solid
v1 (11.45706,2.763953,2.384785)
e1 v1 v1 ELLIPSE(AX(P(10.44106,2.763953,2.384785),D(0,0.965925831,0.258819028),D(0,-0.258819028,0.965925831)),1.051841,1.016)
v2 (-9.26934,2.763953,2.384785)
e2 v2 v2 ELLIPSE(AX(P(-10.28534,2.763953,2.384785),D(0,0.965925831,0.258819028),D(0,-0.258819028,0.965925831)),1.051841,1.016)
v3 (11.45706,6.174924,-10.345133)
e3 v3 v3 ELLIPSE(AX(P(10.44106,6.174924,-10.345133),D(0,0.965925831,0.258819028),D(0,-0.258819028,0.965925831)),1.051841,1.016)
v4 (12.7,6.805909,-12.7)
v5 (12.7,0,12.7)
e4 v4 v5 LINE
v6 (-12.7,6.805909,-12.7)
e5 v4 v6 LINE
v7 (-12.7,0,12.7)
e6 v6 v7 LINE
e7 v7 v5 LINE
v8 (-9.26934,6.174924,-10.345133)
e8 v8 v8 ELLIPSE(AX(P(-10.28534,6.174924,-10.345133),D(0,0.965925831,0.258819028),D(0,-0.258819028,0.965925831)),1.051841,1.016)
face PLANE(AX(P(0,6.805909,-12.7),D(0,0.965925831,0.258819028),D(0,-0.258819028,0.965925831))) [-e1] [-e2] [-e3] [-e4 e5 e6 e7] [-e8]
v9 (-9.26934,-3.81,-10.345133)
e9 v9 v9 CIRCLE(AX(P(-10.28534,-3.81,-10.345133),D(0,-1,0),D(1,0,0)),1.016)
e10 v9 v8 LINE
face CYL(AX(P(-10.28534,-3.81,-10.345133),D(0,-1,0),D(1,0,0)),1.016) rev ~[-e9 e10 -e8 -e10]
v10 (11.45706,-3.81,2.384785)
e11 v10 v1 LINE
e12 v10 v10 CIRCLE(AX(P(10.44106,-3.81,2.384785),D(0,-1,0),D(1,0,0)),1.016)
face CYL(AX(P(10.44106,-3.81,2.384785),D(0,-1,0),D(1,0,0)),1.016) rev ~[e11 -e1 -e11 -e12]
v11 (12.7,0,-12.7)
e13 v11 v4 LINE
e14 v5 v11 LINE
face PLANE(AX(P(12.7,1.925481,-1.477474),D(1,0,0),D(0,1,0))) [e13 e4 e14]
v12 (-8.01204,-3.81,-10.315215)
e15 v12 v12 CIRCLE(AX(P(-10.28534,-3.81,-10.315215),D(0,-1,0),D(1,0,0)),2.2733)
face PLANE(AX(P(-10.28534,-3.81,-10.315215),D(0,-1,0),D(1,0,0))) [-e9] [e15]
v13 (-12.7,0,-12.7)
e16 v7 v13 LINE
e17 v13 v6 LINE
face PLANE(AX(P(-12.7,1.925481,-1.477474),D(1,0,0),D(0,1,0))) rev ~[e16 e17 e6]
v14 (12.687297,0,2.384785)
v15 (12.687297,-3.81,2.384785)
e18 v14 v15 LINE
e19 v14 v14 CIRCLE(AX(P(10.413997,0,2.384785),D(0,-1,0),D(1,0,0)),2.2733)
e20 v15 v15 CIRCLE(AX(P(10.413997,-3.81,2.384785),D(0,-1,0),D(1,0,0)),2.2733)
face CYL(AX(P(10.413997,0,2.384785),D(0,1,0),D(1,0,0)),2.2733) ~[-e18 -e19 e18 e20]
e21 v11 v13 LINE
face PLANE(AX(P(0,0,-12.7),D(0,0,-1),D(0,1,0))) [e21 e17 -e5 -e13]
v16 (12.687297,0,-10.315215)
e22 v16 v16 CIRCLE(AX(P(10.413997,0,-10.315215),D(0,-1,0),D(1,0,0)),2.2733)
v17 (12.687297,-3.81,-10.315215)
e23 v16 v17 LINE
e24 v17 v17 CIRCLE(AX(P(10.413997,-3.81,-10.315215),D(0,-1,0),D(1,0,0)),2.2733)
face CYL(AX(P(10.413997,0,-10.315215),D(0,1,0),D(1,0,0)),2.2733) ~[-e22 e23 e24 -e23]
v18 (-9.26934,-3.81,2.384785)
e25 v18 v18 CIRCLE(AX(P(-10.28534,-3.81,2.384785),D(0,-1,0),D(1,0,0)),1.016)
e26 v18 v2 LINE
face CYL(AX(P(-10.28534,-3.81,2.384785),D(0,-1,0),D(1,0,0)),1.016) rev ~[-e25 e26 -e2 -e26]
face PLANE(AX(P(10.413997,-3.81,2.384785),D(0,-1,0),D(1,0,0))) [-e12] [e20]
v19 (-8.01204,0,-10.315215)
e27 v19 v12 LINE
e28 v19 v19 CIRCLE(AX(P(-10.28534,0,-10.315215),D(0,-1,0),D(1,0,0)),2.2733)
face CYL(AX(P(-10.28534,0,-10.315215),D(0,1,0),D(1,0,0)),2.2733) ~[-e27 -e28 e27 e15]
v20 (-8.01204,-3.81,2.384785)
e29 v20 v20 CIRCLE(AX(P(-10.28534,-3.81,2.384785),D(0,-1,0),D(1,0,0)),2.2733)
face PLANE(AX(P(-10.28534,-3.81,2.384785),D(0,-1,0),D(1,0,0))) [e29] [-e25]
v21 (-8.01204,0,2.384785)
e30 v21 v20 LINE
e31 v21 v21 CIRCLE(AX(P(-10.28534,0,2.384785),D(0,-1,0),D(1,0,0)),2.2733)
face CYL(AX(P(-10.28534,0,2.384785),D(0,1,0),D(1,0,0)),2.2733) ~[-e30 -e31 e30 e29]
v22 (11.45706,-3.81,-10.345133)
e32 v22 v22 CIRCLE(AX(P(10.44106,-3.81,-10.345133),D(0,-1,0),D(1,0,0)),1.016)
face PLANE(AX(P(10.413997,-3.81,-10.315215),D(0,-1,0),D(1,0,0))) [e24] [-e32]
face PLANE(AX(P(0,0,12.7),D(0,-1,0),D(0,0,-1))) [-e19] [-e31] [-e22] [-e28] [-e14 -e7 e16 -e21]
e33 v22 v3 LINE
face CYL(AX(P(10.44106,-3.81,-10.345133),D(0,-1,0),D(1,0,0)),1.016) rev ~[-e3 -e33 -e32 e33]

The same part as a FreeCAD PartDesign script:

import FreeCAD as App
import Part
import Sketcher
Q = App.Units.Quantity

doc = App.newDocument("Part")
body = doc.addObject("PartDesign::Body", "Body")

sketch1 = body.newObject("Sketcher::SketchObject", "Sketch")
sketch1.AttachmentSupport = (doc.getObject("YZ_Plane"), [""])
sketch1.MapMode = "FlatFace"
sketch1.addGeometry(Part.LineSegment(App.Vector(7, -13, 0), App.Vector(0, 13, 0)), False)
sketch1.addGeometry(Part.LineSegment(App.Vector(0, 13, 0), App.Vector(0, -13, 0)), False)
sketch1.addGeometry(Part.LineSegment(App.Vector(0, -13, 0), App.Vector(7, -13, 0)), False)
sketch1.addConstraint(Sketcher.Constraint("Coincident", 0, 2, 1, 1))
sketch1.addConstraint(Sketcher.Constraint("Coincident", 1, 2, 2, 1))
sketch1.addConstraint(Sketcher.Constraint("Coincident", 2, 2, 0, 1))
sketch1.addConstraint(Sketcher.Constraint("Vertical", 1))
sketch1.addConstraint(Sketcher.Constraint("Horizontal", 2))
sketch1.addConstraint(Sketcher.Constraint("Symmetric", 0, 2, 1, 2, -1, 1))
sketch1.addConstraint(Sketcher.Constraint("DistanceY", 1, 2, 1, 1, Q("1 in")))
sketch1.addConstraint(Sketcher.Constraint("Angle", 0, Q("104.999999 deg")))
pad1 = body.newObject("PartDesign::Pad", "Pad")
pad1.Profile = sketch1
pad1.Length = Q("1 in")
pad1.Midplane = True

sketch2 = body.newObject("Sketcher::SketchObject", "Sketch001")
sketch2.AttachmentSupport = (doc.getObject("XZ_Plane"), [""])
sketch2.MapMode = "FlatFace"
sketch2.addGeometry(Part.Circle(App.Vector(-10.3, -10.3, 0), App.Vector(0, 0, 1), 2.3), False)
sketch2.addGeometry(Part.Circle(App.Vector(10.4, -10.3, 0), App.Vector(0, 0, 1), 2.3), False)
sketch2.addGeometry(Part.Circle(App.Vector(-10.3, 2.4, 0), App.Vector(0, 0, 1), 2.3), False)
sketch2.addGeometry(Part.Circle(App.Vector(10.4, 2.4, 0), App.Vector(0, 0, 1), 2.3), False)
sketch2.addConstraint(Sketcher.Constraint("Equal", 0, 1))
sketch2.addConstraint(Sketcher.Constraint("Equal", 1, 2))
sketch2.addConstraint(Sketcher.Constraint("Equal", 2, 3))
sketch2.addConstraint(Sketcher.Constraint("Horizontal", 0, 3, 1, 3))
sketch2.addConstraint(Sketcher.Constraint("Horizontal", 2, 3, 3, 3))
sketch2.addConstraint(Sketcher.Constraint("Vertical", 0, 3, 2, 3))
sketch2.addConstraint(Sketcher.Constraint("Vertical", 1, 3, 3, 3))
sketch2.addConstraint(Sketcher.Constraint("Diameter", 0, Q("0.179 in")))
sketch2.addConstraint(Sketcher.Constraint("DistanceY", 0, 3, 2, 3, Q("0.5 in")))
sketch2.addConstraint(Sketcher.Constraint("DistanceX", -1, 1, 1, 3, Q("0.4099999 in")))
sketch2.addConstraint(Sketcher.Constraint("DistanceX", 0, 3, -1, 1, Q("10.28534 mm")))
sketch2.addConstraint(Sketcher.Constraint("DistanceY", 0, 3, -1, 1, Q("10.315215 mm")))
pad2 = body.newObject("PartDesign::Pad", "Pad001")
pad2.Profile = sketch2
pad2.Length = Q("0.15 in")

sketch3 = body.newObject("Sketcher::SketchObject", "Sketch002")
sketch3.AttachmentSupport = (doc.getObject("XZ_Plane"), [""])
sketch3.MapMode = "FlatFace"
sketch3.AttachmentOffset = App.Placement(App.Vector(0, 0, 0.15 * 25.4), App.Rotation())
sketch3.addGeometry(Part.Circle(App.Vector(-10.3, 2.4, 0), App.Vector(0, 0, 1), 1), False)
sketch3.addGeometry(Part.Circle(App.Vector(-10.3, -10.3, 0), App.Vector(0, 0, 1), 1), False)
sketch3.addGeometry(Part.Circle(App.Vector(10.4, 2.4, 0), App.Vector(0, 0, 1), 1), False)
sketch3.addGeometry(Part.Circle(App.Vector(10.4, -10.3, 0), App.Vector(0, 0, 1), 1), False)
sketch3.addConstraint(Sketcher.Constraint("Equal", 0, 1))
sketch3.addConstraint(Sketcher.Constraint("Equal", 1, 2))
sketch3.addConstraint(Sketcher.Constraint("Equal", 2, 3))
sketch3.addConstraint(Sketcher.Constraint("Horizontal", 0, 3, 2, 3))
sketch3.addConstraint(Sketcher.Constraint("Horizontal", 1, 3, 3, 3))
sketch3.addConstraint(Sketcher.Constraint("Vertical", 0, 3, 1, 3))
sketch3.addConstraint(Sketcher.Constraint("Vertical", 2, 3, 3, 3))
sketch3.addConstraint(Sketcher.Constraint("Diameter", 0, Q("0.08 in")))
sketch3.addConstraint(Sketcher.Constraint("DistanceX", 0, 3, 2, 3, Q("0.816 in")))
sketch3.addConstraint(Sketcher.Constraint("DistanceX", 0, 3, -1, 1, Q("10.28534 mm")))
sketch3.addConstraint(Sketcher.Constraint("DistanceY", 1, 3, 0, 3, Q("12.729918 mm")))
sketch3.addConstraint(Sketcher.Constraint("DistanceY", -1, 1, 0, 3, Q("2.384785 mm")))
pocket1 = body.newObject("PartDesign::Pocket", "Pocket")
pocket1.Profile = sketch3
pocket1.Type = "ThroughAll"

doc.recompute()
